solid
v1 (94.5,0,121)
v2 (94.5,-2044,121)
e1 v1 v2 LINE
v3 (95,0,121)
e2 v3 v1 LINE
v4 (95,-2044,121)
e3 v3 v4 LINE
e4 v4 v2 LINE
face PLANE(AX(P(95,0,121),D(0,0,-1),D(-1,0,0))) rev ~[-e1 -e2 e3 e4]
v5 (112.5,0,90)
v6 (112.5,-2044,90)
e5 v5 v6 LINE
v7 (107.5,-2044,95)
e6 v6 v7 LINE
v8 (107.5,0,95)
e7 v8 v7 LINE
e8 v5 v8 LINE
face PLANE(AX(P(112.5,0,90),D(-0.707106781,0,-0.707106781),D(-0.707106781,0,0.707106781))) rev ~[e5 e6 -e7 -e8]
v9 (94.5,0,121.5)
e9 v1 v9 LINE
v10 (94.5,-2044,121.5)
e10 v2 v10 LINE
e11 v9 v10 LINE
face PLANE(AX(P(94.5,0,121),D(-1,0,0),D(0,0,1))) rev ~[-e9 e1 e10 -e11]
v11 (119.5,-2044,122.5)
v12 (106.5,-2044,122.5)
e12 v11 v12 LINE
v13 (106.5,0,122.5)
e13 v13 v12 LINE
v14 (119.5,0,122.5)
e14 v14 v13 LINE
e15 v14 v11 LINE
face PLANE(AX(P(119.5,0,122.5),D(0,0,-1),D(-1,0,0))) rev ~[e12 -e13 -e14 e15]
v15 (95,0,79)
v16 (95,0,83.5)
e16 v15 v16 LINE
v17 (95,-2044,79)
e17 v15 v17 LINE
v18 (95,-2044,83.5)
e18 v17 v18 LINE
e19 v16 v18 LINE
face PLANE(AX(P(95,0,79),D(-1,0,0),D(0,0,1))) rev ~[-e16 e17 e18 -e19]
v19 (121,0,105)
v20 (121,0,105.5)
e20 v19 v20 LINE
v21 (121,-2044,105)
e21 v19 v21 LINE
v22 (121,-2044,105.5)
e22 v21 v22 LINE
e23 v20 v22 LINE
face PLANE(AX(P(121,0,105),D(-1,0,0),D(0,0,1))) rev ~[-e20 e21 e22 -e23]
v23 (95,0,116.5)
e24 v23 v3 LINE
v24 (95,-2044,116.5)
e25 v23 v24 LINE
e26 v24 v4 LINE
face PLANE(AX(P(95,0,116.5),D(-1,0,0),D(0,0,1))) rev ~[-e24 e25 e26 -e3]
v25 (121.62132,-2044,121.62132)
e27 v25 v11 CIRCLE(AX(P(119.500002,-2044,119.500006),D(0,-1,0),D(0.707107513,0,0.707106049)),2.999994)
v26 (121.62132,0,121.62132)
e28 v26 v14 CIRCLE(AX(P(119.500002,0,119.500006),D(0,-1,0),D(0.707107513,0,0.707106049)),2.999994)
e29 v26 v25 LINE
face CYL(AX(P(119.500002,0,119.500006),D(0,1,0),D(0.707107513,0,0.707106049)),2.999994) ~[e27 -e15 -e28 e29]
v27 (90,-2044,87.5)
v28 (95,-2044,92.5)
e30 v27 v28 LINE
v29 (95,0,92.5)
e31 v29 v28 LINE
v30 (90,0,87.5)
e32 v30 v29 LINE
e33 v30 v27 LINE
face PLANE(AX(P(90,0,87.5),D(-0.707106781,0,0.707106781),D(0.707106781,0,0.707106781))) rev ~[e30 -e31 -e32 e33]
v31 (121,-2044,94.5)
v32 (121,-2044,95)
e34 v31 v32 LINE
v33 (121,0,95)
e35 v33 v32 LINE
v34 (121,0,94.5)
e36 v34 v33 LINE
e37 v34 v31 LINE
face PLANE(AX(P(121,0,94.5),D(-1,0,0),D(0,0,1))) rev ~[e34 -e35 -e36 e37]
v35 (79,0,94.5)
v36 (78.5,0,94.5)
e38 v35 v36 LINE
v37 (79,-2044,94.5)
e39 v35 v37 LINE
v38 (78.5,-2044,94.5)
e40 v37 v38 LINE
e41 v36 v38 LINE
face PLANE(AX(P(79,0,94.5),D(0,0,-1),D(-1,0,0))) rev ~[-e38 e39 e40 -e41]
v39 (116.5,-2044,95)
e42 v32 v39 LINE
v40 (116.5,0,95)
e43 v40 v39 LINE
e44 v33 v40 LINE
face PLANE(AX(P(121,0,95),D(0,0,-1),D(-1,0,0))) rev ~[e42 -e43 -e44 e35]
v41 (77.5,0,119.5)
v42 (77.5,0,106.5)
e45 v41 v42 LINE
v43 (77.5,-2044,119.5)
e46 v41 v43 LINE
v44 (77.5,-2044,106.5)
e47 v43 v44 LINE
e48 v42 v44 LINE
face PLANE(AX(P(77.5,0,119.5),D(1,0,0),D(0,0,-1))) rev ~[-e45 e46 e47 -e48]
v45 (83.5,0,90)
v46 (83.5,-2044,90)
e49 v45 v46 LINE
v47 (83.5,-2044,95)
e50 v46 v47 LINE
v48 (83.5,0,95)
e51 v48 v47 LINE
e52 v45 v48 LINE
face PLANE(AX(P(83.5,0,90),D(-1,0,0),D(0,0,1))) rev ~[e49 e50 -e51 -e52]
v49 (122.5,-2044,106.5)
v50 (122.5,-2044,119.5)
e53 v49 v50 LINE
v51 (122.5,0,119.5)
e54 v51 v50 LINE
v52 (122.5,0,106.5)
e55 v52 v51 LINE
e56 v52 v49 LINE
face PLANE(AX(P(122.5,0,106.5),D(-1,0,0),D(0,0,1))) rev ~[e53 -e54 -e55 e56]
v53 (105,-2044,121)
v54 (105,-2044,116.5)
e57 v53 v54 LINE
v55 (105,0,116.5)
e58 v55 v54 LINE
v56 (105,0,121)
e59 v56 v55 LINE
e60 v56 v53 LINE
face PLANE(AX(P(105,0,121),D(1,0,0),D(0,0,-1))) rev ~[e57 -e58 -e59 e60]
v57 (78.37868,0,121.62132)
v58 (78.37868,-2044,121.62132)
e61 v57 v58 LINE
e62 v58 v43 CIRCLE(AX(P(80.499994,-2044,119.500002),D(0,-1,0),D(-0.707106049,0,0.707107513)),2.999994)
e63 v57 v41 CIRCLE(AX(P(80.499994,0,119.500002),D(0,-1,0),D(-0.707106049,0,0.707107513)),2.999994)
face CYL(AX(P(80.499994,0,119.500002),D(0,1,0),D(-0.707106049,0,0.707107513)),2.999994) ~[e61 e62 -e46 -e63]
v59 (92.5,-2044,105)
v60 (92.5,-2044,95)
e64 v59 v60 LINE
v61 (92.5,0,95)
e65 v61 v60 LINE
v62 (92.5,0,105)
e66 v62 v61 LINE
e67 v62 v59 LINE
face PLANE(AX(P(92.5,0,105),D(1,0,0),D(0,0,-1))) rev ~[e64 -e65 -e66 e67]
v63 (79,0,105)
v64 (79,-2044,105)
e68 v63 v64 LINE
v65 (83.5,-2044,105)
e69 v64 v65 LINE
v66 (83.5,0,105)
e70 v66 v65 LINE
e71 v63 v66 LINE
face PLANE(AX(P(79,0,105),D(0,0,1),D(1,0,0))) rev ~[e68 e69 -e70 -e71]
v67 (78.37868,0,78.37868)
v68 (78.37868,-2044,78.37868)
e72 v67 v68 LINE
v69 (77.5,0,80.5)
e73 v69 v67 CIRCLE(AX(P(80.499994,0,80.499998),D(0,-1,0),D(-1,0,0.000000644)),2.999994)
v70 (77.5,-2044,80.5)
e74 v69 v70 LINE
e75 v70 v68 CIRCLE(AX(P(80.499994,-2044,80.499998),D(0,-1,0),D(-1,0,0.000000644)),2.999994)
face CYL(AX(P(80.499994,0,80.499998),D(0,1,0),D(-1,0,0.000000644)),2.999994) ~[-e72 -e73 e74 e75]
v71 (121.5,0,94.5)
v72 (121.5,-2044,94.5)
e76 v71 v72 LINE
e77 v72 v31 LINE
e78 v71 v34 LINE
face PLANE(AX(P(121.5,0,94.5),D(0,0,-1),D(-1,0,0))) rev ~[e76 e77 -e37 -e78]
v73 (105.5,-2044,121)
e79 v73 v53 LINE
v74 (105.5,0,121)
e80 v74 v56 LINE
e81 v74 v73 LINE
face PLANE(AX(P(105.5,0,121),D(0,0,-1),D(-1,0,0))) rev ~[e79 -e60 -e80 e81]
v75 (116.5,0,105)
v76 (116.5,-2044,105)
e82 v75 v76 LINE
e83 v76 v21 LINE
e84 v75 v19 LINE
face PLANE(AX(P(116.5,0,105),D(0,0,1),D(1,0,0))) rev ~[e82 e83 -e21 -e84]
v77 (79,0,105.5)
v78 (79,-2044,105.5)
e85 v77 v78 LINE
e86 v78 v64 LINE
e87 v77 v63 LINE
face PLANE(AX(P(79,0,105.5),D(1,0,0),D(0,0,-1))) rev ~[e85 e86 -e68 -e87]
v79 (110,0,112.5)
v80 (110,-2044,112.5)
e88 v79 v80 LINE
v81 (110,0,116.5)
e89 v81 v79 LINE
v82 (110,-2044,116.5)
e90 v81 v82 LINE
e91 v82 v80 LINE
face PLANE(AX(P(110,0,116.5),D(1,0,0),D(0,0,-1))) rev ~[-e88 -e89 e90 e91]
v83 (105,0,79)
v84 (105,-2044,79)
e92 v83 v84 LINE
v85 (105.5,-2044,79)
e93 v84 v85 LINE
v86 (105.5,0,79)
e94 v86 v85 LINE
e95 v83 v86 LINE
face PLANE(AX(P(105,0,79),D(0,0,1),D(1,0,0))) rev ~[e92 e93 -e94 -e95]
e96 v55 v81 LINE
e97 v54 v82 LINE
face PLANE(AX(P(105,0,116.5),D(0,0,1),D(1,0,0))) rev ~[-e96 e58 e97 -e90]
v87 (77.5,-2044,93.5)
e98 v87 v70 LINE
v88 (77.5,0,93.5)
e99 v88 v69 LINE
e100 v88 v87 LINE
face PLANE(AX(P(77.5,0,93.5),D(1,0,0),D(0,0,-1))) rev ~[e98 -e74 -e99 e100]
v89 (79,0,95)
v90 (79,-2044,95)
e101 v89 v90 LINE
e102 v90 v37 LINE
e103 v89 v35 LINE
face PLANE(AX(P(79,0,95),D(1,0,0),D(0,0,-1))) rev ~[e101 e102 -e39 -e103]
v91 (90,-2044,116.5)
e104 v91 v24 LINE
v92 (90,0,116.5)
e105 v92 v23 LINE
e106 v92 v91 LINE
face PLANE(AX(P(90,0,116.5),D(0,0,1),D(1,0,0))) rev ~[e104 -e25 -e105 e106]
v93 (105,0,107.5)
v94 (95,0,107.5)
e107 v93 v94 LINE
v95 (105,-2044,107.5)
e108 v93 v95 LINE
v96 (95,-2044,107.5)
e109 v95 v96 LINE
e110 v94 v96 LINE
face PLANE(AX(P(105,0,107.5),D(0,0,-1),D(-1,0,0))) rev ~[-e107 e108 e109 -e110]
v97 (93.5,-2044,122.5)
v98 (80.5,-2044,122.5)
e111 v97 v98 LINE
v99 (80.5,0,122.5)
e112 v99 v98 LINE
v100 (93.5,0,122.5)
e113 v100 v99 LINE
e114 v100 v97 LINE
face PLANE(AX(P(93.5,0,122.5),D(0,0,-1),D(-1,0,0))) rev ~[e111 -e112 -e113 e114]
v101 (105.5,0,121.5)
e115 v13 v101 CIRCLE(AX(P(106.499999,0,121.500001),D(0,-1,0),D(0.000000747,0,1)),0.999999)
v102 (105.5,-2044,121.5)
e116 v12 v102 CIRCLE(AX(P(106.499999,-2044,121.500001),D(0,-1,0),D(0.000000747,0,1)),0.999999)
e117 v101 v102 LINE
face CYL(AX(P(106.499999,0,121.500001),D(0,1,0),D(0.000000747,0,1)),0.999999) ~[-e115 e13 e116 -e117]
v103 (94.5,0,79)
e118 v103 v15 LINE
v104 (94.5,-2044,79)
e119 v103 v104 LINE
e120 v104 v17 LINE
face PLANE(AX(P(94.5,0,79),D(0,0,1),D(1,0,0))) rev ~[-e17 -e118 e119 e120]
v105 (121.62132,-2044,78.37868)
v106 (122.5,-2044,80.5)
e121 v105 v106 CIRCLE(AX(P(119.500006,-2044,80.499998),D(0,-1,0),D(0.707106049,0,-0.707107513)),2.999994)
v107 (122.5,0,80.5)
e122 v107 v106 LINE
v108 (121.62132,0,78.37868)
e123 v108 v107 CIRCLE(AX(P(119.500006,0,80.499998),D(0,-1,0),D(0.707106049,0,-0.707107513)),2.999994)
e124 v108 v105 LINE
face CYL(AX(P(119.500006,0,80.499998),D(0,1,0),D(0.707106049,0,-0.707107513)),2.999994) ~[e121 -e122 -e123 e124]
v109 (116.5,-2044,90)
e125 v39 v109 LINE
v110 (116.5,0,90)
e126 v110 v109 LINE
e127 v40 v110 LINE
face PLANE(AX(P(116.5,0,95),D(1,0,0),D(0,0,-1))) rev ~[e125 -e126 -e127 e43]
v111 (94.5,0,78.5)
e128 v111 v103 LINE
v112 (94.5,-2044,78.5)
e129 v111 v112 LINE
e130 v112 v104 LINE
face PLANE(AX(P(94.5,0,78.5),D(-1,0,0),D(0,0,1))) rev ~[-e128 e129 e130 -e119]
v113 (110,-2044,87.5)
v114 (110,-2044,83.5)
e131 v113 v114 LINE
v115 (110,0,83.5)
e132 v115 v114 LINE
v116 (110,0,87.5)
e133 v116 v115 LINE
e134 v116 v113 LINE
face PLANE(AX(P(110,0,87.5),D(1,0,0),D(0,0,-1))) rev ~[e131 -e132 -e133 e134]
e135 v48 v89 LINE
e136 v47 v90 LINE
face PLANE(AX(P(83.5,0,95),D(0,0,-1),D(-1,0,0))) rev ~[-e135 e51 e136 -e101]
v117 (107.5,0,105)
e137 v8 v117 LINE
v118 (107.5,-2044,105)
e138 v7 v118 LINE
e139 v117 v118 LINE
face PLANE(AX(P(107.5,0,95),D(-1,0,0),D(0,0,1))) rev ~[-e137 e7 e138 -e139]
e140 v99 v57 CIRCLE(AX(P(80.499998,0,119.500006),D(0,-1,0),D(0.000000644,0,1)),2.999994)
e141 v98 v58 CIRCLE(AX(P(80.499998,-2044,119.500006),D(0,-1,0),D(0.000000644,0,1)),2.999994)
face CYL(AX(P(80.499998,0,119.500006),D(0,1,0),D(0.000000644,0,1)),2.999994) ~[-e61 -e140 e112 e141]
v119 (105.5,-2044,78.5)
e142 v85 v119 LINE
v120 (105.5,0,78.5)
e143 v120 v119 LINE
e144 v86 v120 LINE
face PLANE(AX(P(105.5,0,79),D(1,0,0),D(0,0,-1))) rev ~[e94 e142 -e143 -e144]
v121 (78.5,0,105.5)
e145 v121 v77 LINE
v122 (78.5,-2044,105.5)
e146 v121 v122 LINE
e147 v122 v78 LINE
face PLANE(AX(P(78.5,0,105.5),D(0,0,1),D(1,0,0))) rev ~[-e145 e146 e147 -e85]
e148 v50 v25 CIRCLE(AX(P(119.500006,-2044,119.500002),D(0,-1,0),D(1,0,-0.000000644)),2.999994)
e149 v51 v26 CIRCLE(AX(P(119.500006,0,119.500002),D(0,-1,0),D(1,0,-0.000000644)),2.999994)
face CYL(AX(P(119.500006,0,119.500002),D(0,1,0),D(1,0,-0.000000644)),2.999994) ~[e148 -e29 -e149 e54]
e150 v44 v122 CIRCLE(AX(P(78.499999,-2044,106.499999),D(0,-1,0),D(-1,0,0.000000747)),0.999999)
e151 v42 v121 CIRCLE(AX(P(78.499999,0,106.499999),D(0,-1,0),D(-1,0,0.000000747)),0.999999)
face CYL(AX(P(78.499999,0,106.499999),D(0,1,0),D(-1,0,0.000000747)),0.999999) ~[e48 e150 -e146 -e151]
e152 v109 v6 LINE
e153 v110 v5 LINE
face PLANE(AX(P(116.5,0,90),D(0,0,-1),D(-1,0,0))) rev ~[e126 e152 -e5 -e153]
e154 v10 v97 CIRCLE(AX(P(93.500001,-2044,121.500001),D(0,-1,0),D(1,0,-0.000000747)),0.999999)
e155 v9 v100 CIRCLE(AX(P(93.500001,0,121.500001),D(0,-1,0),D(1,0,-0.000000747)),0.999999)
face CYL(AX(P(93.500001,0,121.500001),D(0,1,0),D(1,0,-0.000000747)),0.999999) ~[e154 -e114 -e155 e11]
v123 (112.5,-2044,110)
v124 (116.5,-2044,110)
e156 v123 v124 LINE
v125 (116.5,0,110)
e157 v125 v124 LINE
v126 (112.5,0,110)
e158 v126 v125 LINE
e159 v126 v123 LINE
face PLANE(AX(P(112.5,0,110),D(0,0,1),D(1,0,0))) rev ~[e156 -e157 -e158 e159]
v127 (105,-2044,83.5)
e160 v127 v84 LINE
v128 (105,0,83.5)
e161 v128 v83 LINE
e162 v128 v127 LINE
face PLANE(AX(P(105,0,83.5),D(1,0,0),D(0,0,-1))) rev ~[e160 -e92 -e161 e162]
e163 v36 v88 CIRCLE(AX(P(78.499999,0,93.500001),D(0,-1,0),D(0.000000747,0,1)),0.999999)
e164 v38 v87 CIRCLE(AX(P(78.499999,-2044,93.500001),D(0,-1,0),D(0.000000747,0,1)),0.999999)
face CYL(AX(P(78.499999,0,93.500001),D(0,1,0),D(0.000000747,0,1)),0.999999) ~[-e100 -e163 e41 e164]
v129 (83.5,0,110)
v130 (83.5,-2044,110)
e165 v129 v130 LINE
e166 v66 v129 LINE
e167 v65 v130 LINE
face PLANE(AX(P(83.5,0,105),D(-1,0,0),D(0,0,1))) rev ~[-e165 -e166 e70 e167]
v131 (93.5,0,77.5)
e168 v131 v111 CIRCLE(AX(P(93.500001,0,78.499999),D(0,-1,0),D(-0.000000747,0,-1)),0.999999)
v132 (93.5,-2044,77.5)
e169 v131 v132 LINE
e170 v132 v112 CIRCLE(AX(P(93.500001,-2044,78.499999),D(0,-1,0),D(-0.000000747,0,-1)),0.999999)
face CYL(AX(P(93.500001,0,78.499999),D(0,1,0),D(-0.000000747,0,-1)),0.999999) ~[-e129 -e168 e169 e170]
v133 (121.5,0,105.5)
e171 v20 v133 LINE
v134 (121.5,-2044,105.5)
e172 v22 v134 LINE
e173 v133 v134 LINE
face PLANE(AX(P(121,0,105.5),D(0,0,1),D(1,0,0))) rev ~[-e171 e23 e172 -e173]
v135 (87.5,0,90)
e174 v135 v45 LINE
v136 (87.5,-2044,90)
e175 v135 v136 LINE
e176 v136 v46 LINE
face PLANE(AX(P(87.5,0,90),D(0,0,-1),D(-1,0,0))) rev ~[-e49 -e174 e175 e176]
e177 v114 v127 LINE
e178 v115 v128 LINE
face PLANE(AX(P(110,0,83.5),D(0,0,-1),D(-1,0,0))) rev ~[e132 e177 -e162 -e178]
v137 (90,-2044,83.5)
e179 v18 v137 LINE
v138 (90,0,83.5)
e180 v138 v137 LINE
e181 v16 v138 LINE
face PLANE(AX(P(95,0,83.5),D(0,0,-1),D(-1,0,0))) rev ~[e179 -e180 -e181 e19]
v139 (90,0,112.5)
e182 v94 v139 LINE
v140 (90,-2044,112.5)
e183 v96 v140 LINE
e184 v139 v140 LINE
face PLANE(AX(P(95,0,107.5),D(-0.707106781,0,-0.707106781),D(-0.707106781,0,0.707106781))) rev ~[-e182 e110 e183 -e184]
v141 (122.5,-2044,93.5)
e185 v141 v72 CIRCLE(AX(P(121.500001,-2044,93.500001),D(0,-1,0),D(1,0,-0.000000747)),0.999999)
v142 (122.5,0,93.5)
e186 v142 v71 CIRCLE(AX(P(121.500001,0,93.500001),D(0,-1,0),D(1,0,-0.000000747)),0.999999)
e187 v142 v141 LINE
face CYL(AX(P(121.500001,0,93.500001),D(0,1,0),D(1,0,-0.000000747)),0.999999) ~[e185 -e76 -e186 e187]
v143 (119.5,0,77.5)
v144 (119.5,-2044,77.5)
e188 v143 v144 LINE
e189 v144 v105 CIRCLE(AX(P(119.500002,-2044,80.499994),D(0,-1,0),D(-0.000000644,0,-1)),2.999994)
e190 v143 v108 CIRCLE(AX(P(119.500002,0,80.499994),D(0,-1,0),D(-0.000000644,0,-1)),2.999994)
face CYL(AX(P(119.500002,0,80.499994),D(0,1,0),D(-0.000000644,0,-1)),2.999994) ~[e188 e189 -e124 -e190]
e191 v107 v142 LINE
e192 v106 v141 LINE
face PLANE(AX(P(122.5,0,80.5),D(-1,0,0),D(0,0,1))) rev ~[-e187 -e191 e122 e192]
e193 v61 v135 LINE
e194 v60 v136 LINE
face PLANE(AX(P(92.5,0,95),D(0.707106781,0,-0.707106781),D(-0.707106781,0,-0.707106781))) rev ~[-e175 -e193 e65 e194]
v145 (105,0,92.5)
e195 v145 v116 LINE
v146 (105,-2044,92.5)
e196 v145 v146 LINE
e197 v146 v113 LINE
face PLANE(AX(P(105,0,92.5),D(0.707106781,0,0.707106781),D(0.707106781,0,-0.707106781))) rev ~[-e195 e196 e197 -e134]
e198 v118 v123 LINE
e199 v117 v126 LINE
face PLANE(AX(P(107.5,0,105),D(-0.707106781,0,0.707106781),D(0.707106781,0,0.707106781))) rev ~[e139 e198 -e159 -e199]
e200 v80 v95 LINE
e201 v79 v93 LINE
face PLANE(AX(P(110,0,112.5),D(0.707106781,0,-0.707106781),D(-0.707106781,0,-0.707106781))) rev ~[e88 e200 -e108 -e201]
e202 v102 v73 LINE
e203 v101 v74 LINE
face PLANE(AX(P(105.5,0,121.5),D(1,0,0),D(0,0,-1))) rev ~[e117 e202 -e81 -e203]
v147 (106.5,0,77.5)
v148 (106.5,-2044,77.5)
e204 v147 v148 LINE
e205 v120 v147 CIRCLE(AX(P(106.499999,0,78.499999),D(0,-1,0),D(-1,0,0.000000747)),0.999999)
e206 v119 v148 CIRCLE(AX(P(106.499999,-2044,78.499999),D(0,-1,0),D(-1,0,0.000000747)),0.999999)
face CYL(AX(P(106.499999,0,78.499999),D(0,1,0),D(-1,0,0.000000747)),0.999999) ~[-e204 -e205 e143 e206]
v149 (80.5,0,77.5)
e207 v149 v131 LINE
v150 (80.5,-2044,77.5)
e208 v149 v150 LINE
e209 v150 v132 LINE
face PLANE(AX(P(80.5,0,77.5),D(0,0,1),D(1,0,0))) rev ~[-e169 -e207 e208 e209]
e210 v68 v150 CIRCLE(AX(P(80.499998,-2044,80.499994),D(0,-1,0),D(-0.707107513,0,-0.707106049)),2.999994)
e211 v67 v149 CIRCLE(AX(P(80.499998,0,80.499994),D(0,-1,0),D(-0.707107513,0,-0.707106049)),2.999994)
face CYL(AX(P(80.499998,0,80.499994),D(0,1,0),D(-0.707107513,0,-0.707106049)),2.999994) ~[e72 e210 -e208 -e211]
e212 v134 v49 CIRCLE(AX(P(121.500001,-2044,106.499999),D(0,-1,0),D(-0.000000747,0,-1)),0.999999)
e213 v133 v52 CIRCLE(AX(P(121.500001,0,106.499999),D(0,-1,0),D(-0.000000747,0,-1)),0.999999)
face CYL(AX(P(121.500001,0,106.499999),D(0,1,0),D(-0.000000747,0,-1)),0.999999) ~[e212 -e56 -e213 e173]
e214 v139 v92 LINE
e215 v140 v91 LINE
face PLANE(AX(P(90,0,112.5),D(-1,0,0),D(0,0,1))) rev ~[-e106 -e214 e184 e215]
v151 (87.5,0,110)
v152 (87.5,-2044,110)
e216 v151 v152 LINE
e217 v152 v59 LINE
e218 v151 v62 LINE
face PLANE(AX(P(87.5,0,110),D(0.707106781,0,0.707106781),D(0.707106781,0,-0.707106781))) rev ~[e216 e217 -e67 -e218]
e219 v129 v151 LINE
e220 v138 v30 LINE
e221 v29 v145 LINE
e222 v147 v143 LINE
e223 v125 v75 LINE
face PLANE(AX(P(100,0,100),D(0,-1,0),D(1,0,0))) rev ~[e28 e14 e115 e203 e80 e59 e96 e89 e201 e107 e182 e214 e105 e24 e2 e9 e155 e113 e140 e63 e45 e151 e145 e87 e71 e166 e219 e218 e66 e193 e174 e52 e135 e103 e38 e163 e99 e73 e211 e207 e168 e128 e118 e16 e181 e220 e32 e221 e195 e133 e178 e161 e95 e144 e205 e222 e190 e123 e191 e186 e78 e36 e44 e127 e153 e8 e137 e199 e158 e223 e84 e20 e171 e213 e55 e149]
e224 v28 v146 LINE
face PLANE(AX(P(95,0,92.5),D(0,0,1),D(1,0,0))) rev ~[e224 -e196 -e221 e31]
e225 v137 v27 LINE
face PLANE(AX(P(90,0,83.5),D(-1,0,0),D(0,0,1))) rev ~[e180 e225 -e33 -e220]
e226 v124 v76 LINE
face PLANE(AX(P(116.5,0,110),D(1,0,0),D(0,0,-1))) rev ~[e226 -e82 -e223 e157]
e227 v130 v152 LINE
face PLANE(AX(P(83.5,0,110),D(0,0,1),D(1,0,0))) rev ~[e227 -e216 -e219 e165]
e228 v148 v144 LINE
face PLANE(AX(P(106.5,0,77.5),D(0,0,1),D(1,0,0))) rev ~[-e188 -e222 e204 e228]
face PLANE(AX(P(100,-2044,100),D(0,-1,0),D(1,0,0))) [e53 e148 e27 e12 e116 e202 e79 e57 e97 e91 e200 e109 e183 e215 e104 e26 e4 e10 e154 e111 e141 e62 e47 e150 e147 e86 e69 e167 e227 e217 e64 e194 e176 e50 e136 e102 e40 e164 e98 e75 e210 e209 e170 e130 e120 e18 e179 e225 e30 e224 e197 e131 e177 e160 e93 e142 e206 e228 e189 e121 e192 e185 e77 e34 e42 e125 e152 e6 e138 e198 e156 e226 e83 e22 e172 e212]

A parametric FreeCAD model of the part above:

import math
import FreeCAD as App
import Part
import Sketcher

doc = App.newDocument("Part")
params = doc.addObject("Spreadsheet::Sheet", "Params")
for row, (alias, value) in enumerate([
    ("sketch1_radius", "0.999999 mm"),
    ("sketch1_width", "13 mm"),
    ("sketch1_width2", "4 mm"),
    ("sketch1_width3", "5 mm"),
    ("sketch1_width4", "10 mm"),
    ("pad1_length", "2044 mm"),
], start=1):
    params.set(f"A{row}", alias)
    params.set(f"B{row}", "=" + value)
    params.setAlias(f"B{row}", alias)

body = doc.addObject("PartDesign::Body", "Body")

sketch1 = doc.addObject("Sketcher::SketchObject", "Sketch")
body.addObject(sketch1)
sketch1.AttachmentSupport = (doc.XZ_Plane, [""])
sketch1.MapMode = "FlatFace"
sketch1.addGeometry(Part.LineSegment(App.Vector(93.5, 122.5, 0), App.Vector(80.5, 122.5, 0)), False)
sketch1.addGeometry(Part.ArcOfCircle(Part.Circle(App.Vector(80.5, 119.5, 0), App.Vector(0, 0, 1), 3), math.radians(90), math.radians(135)), False)
sketch1.addGeometry(Part.ArcOfCircle(Part.Circle(App.Vector(80.5, 119.5, 0), App.Vector(0, 0, 1), 3), math.radians(135), math.radians(180)), False)
sketch1.addGeometry(Part.LineSegment(App.Vector(77.5, 119.5, 0), App.Vector(77.5, 106.5, 0)), False)
sketch1.addGeometry(Part.ArcOfCircle(Part.Circle(App.Vector(78.5, 106.5, 0), App.Vector(0, 0, 1), 1), math.radians(180), math.radians(270)), False)
sketch1.addGeometry(Part.LineSegment(App.Vector(78.5, 105.5, 0), App.Vector(79, 105.5, 0)), False)
sketch1.addGeometry(Part.LineSegment(App.Vector(79, 105.5, 0), App.Vector(79, 105, 0)), False)
sketch1.addGeometry(Part.LineSegment(App.Vector(79, 105, 0), App.Vector(83.5, 105, 0)), False)
sketch1.addGeometry(Part.LineSegment(App.Vector(83.5, 105, 0), App.Vector(83.5, 110, 0)), False)
sketch1.addGeometry(Part.LineSegment(App.Vector(83.5, 110, 0), App.Vector(87.5, 110, 0)), False)
sketch1.addGeometry(Part.LineSegment(App.Vector(87.5, 110, 0), App.Vector(92.5, 105, 0)), False)
sketch1.addGeometry(Part.LineSegment(App.Vector(92.5, 105, 0), App.Vector(92.5, 95, 0)), False)
sketch1.addGeometry(Part.LineSegment(App.Vector(92.5, 95, 0), App.Vector(87.5, 90, 0)), False)
sketch1.addGeometry(Part.LineSegment(App.Vector(87.5, 90, 0), App.Vector(83.5, 90, 0)), False)
sketch1.addGeometry(Part.LineSegment(App.Vector(83.5, 90, 0), App.Vector(83.5, 95, 0)), False)
sketch1.addGeometry(Part.LineSegment(App.Vector(83.5, 95, 0), App.Vector(79, 95, 0)), False)
sketch1.addGeometry(Part.LineSegment(App.Vector(79, 95, 0), App.Vector(79, 94.5, 0)), False)
sketch1.addGeometry(Part.LineSegment(App.Vector(79, 94.5, 0), App.Vector(78.5, 94.5, 0)), False)
sketch1.addGeometry(Part.ArcOfCircle(Part.Circle(App.Vector(78.5, 93.5, 0), App.Vector(0, 0, 1), 1), math.radians(90), math.radians(180)), False)
sketch1.addGeometry(Part.LineSegment(App.Vector(77.5, 93.5, 0), App.Vector(77.5, 80.5, 0)), False)
sketch1.addGeometry(Part.ArcOfCircle(Part.Circle(App.Vector(80.5, 80.5, 0), App.Vector(0, 0, 1), 3), math.radians(180), math.radians(225)), False)
sketch1.addGeometry(Part.ArcOfCircle(Part.Circle(App.Vector(80.5, 80.5, 0), App.Vector(0, 0, 1), 3), math.radians(-135), math.radians(-90)), False)
sketch1.addGeometry(Part.LineSegment(App.Vector(80.5, 77.5, 0), App.Vector(93.5, 77.5, 0)), False)
sketch1.addGeometry(Part.ArcOfCircle(Part.Circle(App.Vector(93.5, 78.5, 0), App.Vector(0, 0, 1), 1), math.radians(-90), math.radians(0)), False)
sketch1.addGeometry(Part.LineSegment(App.Vector(94.5, 78.5, 0), App.Vector(94.5, 79, 0)), False)
sketch1.addGeometry(Part.LineSegment(App.Vector(94.5, 79, 0), App.Vector(95, 79, 0)), False)
sketch1.addGeometry(Part.LineSegment(App.Vector(95, 79, 0), App.Vector(95, 83.5, 0)), False)
sketch1.addGeometry(Part.LineSegment(App.Vector(95, 83.5, 0), App.Vector(90, 83.5, 0)), False)
sketch1.addGeometry(Part.LineSegment(App.Vector(90, 83.5, 0), App.Vector(90, 87.5, 0)), False)
sketch1.addGeometry(Part.LineSegment(App.Vector(90, 87.5, 0), App.Vector(95, 92.5, 0)), False)
sketch1.addGeometry(Part.LineSegment(App.Vector(95, 92.5, 0), App.Vector(105, 92.5, 0)), False)
sketch1.addGeometry(Part.LineSegment(App.Vector(105, 92.5, 0), App.Vector(110, 87.5, 0)), False)
sketch1.addGeometry(Part.LineSegment(App.Vector(110, 87.5, 0), App.Vector(110, 83.5, 0)), False)
sketch1.addGeometry(Part.LineSegment(App.Vector(110, 83.5, 0), App.Vector(105, 83.5, 0)), False)
sketch1.addGeometry(Part.LineSegment(App.Vector(105, 83.5, 0), App.Vector(105, 79, 0)), False)
sketch1.addGeometry(Part.LineSegment(App.Vector(105, 79, 0), App.Vector(105.5, 79, 0)), False)
sketch1.addGeometry(Part.LineSegment(App.Vector(105.5, 79, 0), App.Vector(105.5, 78.5, 0)), False)
sketch1.addGeometry(Part.ArcOfCircle(Part.Circle(App.Vector(106.5, 78.5, 0), App.Vector(0, 0, 1), 1), math.radians(180), math.radians(270)), False)
sketch1.addGeometry(Part.LineSegment(App.Vector(106.5, 77.5, 0), App.Vector(119.5, 77.5, 0)), False)
sketch1.addGeometry(Part.ArcOfCircle(Part.Circle(App.Vector(119.5, 80.5, 0), App.Vector(0, 0, 1), 3), math.radians(-90), math.radians(-45)), False)
sketch1.addGeometry(Part.ArcOfCircle(Part.Circle(App.Vector(119.5, 80.5, 0), App.Vector(0, 0, 1), 3), math.radians(-45), math.radians(0)), False)
sketch1.addGeometry(Part.LineSegment(App.Vector(122.5, 80.5, 0), App.Vector(122.5, 93.5, 0)), False)
sketch1.addGeometry(Part.ArcOfCircle(Part.Circle(App.Vector(121.5, 93.5, 0), App.Vector(0, 0, 1), 1), math.radians(0), math.radians(90)), False)
sketch1.addGeometry(Part.LineSegment(App.Vector(121.5, 94.5, 0), App.Vector(121, 94.5, 0)), False)
sketch1.addGeometry(Part.LineSegment(App.Vector(121, 94.5, 0), App.Vector(121, 95, 0)), False)
sketch1.addGeometry(Part.LineSegment(App.Vector(121, 95, 0), App.Vector(116.5, 95, 0)), False)
sketch1.addGeometry(Part.LineSegment(App.Vector(116.5, 95, 0), App.Vector(116.5, 90, 0)), False)
sketch1.addGeometry(Part.LineSegment(App.Vector(116.5, 90, 0), App.Vector(112.5, 90, 0)), False)
sketch1.addGeometry(Part.LineSegment(App.Vector(112.5, 90, 0), App.Vector(107.5, 95, 0)), False)
sketch1.addGeometry(Part.LineSegment(App.Vector(107.5, 95, 0), App.Vector(107.5, 105, 0)), False)
sketch1.addGeometry(Part.LineSegment(App.Vector(107.5, 105, 0), App.Vector(112.5, 110, 0)), False)
sketch1.addGeometry(Part.LineSegment(App.Vector(112.5, 110, 0), App.Vector(116.5, 110, 0)), False)
sketch1.addGeometry(Part.LineSegment(App.Vector(116.5, 110, 0), App.Vector(116.5, 105, 0)), False)
sketch1.addGeometry(Part.LineSegment(App.Vector(116.5, 105, 0), App.Vector(121, 105, 0)), False)
sketch1.addGeometry(Part.LineSegment(App.Vector(121, 105, 0), App.Vector(121, 105.5, 0)), False)
sketch1.addGeometry(Part.LineSegment(App.Vector(121, 105.5, 0), App.Vector(121.5, 105.5, 0)), False)
sketch1.addGeometry(Part.ArcOfCircle(Part.Circle(App.Vector(121.5, 106.5, 0), App.Vector(0, 0, 1), 1), math.radians(-90), math.radians(0)), False)
sketch1.addGeometry(Part.LineSegment(App.Vector(122.5, 106.5, 0), App.Vector(122.5, 119.5, 0)), False)
sketch1.addGeometry(Part.ArcOfCircle(Part.Circle(App.Vector(119.5, 119.5, 0), App.Vector(0, 0, 1), 3), math.radians(0), math.radians(45)), False)
sketch1.addGeometry(Part.ArcOfCircle(Part.Circle(App.Vector(119.5, 119.5, 0), App.Vector(0, 0, 1), 3), math.radians(45), math.radians(90)), False)
sketch1.addGeometry(Part.LineSegment(App.Vector(119.5, 122.5, 0), App.Vector(106.5, 122.5, 0)), False)
sketch1.addGeometry(Part.ArcOfCircle(Part.Circle(App.Vector(106.5, 121.5, 0), App.Vector(0, 0, 1), 1), math.radians(90), math.radians(180)), False)
sketch1.addGeometry(Part.LineSegment(App.Vector(105.5, 121.5, 0), App.Vector(105.5, 121, 0)), False)
sketch1.addGeometry(Part.LineSegment(App.Vector(105.5, 121, 0), App.Vector(105, 121, 0)), False)
sketch1.addGeometry(Part.LineSegment(App.Vector(105, 121, 0), App.Vector(105, 116.5, 0)), False)
sketch1.addGeometry(Part.LineSegment(App.Vector(105, 116.5, 0), App.Vector(110, 116.5, 0)), False)
sketch1.addGeometry(Part.LineSegment(App.Vector(110, 116.5, 0), App.Vector(110, 112.5, 0)), False)
sketch1.addGeometry(Part.LineSegment(App.Vector(110, 112.5, 0), App.Vector(105, 107.5, 0)), False)
sketch1.addGeometry(Part.LineSegment(App.Vector(105, 107.5, 0), App.Vector(95, 107.5, 0)), False)
sketch1.addGeometry(Part.LineSegment(App.Vector(95, 107.5, 0), App.Vector(90, 112.5, 0)), False)
sketch1.addGeometry(Part.LineSegment(App.Vector(90, 112.5, 0), App.Vector(90, 116.5, 0)), False)
sketch1.addGeometry(Part.LineSegment(App.Vector(90, 116.5, 0), App.Vector(95, 116.5, 0)), False)
sketch1.addGeometry(Part.LineSegment(App.Vector(95, 116.5, 0), App.Vector(95, 121, 0)), False)
sketch1.addGeometry(Part.LineSegment(App.Vector(95, 121, 0), App.Vector(94.5, 121, 0)), False)
sketch1.addGeometry(Part.LineSegment(App.Vector(94.5, 121, 0), App.Vector(94.5, 121.5, 0)), False)
sketch1.addGeometry(Part.ArcOfCircle(Part.Circle(App.Vector(93.5, 121.5, 0), App.Vector(0, 0, 1), 1), math.radians(0), math.radians(90)), False)
sketch1.addConstraint(Sketcher.Constraint("Tangent", 0, 2, 1, 1))
sketch1.addConstraint(Sketcher.Constraint("Coincident", 1, 2, 2, 1))
sketch1.addConstraint(Sketcher.Constraint("Tangent", 2, 2, 3, 1))
sketch1.addConstraint(Sketcher.Constraint("Tangent", 3, 2, 4, 1))
sketch1.addConstraint(Sketcher.Constraint("Tangent", 4, 2, 5, 1))
sketch1.addConstraint(Sketcher.Constraint("Coincident", 5, 2, 6, 1))
sketch1.addConstraint(Sketcher.Constraint("Coincident", 6, 2, 7, 1))
sketch1.addConstraint(Sketcher.Constraint("Coincident", 7, 2, 8, 1))
sketch1.addConstraint(Sketcher.Constraint("Coincident", 8, 2, 9, 1))
sketch1.addConstraint(Sketcher.Constraint("Coincident", 9, 2, 10, 1))
sketch1.addConstraint(Sketcher.Constraint("Coincident", 10, 2, 11, 1))
sketch1.addConstraint(Sketcher.Constraint("Coincident", 11, 2, 12, 1))
sketch1.addConstraint(Sketcher.Constraint("Coincident", 12, 2, 13, 1))
sketch1.addConstraint(Sketcher.Constraint("Coincident", 13, 2, 14, 1))
sketch1.addConstraint(Sketcher.Constraint("Coincident", 14, 2, 15, 1))
sketch1.addConstraint(Sketcher.Constraint("Coincident", 15, 2, 16, 1))
sketch1.addConstraint(Sketcher.Constraint("Coincident", 16, 2, 17, 1))
sketch1.addConstraint(Sketcher.Constraint("Tangent", 17, 2, 18, 1))
sketch1.addConstraint(Sketcher.Constraint("Tangent", 18, 2, 19, 1))
sketch1.addConstraint(Sketcher.Constraint("Tangent", 19, 2, 20, 1))
sketch1.addConstraint(Sketcher.Constraint("Coincident", 20, 2, 21, 1))
sketch1.addConstraint(Sketcher.Constraint("Tangent", 21, 2, 22, 1))
sketch1.addConstraint(Sketcher.Constraint("Tangent", 22, 2, 23, 1))
sketch1.addConstraint(Sketcher.Constraint("Tangent", 23, 2, 24, 1))
sketch1.addConstraint(Sketcher.Constraint("Coincident", 24, 2, 25, 1))
sketch1.addConstraint(Sketcher.Constraint("Coincident", 25, 2, 26, 1))
sketch1.addConstraint(Sketcher.Constraint("Coincident", 26, 2, 27, 1))
sketch1.addConstraint(Sketcher.Constraint("Coincident", 27, 2, 28, 1))
sketch1.addConstraint(Sketcher.Constraint("Coincident", 28, 2, 29, 1))
sketch1.addConstraint(Sketcher.Constraint("Coincident", 29, 2, 30, 1))
sketch1.addConstraint(Sketcher.Constraint("Coincident", 30, 2, 31, 1))
sketch1.addConstraint(Sketcher.Constraint("Coincident", 31, 2, 32, 1))
sketch1.addConstraint(Sketcher.Constraint("Coincident", 32, 2, 33, 1))
sketch1.addConstraint(Sketcher.Constraint("Coincident", 33, 2, 34, 1))
sketch1.addConstraint(Sketcher.Constraint("Coincident", 34, 2, 35, 1))
sketch1.addConstraint(Sketcher.Constraint("Coincident", 35, 2, 36, 1))
sketch1.addConstraint(Sketcher.Constraint("Tangent", 36, 2, 37, 1))
sketch1.addConstraint(Sketcher.Constraint("Tangent", 37, 2, 38, 1))
sketch1.addConstraint(Sketcher.Constraint("Tangent", 38, 2, 39, 1))
sketch1.addConstraint(Sketcher.Constraint("Coincident", 39, 2, 40, 1))
sketch1.addConstraint(Sketcher.Constraint("Tangent", 40, 2, 41, 1))
sketch1.addConstraint(Sketcher.Constraint("Tangent", 41, 2, 42, 1))
sketch1.addConstraint(Sketcher.Constraint("Tangent", 42, 2, 43, 1))
sketch1.addConstraint(Sketcher.Constraint("Coincident", 43, 2, 44, 1))
sketch1.addConstraint(Sketcher.Constraint("Coincident", 44, 2, 45, 1))
sketch1.addConstraint(Sketcher.Constraint("Coincident", 45, 2, 46, 1))
sketch1.addConstraint(Sketcher.Constraint("Coincident", 46, 2, 47, 1))
sketch1.addConstraint(Sketcher.Constraint("Coincident", 47, 2, 48, 1))
sketch1.addConstraint(Sketcher.Constraint("Coincident", 48, 2, 49, 1))
sketch1.addConstraint(Sketcher.Constraint("Coincident", 49, 2, 50, 1))
sketch1.addConstraint(Sketcher.Constraint("Coincident", 50, 2, 51, 1))
sketch1.addConstraint(Sketcher.Constraint("Coincident", 51, 2, 52, 1))
sketch1.addConstraint(Sketcher.Constraint("Coincident", 52, 2, 53, 1))
sketch1.addConstraint(Sketcher.Constraint("Coincident", 53, 2, 54, 1))
sketch1.addConstraint(Sketcher.Constraint("Coincident", 54, 2, 55, 1))
sketch1.addConstraint(Sketcher.Constraint("Tangent", 55, 2, 56, 1))
sketch1.addConstraint(Sketcher.Constraint("Tangent", 56, 2, 57, 1))
sketch1.addConstraint(Sketcher.Constraint("Tangent", 57, 2, 58, 1))
sketch1.addConstraint(Sketcher.Constraint("Coincident", 58, 2, 59, 1))
sketch1.addConstraint(Sketcher.Constraint("Tangent", 59, 2, 60, 1))
sketch1.addConstraint(Sketcher.Constraint("Tangent", 60, 2, 61, 1))
sketch1.addConstraint(Sketcher.Constraint("Tangent", 61, 2, 62, 1))
sketch1.addConstraint(Sketcher.Constraint("Coincident", 62, 2, 63, 1))
sketch1.addConstraint(Sketcher.Constraint("Coincident", 63, 2, 64, 1))
sketch1.addConstraint(Sketcher.Constraint("Coincident", 64, 2, 65, 1))
sketch1.addConstraint(Sketcher.Constraint("Coincident", 65, 2, 66, 1))
sketch1.addConstraint(Sketcher.Constraint("Coincident", 66, 2, 67, 1))
sketch1.addConstraint(Sketcher.Constraint("Coincident", 67, 2, 68, 1))
sketch1.addConstraint(Sketcher.Constraint("Coincident", 68, 2, 69, 1))
sketch1.addConstraint(Sketcher.Constraint("Coincident", 69, 2, 70, 1))
sketch1.addConstraint(Sketcher.Constraint("Coincident", 70, 2, 71, 1))
sketch1.addConstraint(Sketcher.Constraint("Coincident", 71, 2, 72, 1))
sketch1.addConstraint(Sketcher.Constraint("Coincident", 72, 2, 73, 1))
sketch1.addConstraint(Sketcher.Constraint("Coincident", 73, 2, 74, 1))
sketch1.addConstraint(Sketcher.Constraint("Tangent", 74, 2, 75, 1))
sketch1.addConstraint(Sketcher.Constraint("Tangent", 75, 2, 0, 1))
sketch1.addConstraint(Sketcher.Constraint("Horizontal", 0))
sketch1.addConstraint(Sketcher.Constraint("Vertical", 3))
sketch1.addConstraint(Sketcher.Constraint("Horizontal", 5))
sketch1.addConstraint(Sketcher.Constraint("Vertical", 6))
sketch1.addConstraint(Sketcher.Constraint("Horizontal", 7))
sketch1.addConstraint(Sketcher.Constraint("Vertical", 8))
sketch1.addConstraint(Sketcher.Constraint("Horizontal", 9))
sketch1.addConstraint(Sketcher.Constraint("Vertical", 11))
sketch1.addConstraint(Sketcher.Constraint("Horizontal", 13))
sketch1.addConstraint(Sketcher.Constraint("Vertical", 14))
sketch1.addConstraint(Sketcher.Constraint("Horizontal", 15))
sketch1.addConstraint(Sketcher.Constraint("Vertical", 16))
sketch1.addConstraint(Sketcher.Constraint("Horizontal", 17))
sketch1.addConstraint(Sketcher.Constraint("Vertical", 19))
sketch1.addConstraint(Sketcher.Constraint("Horizontal", 22))
sketch1.addConstraint(Sketcher.Constraint("Vertical", 24))
sketch1.addConstraint(Sketcher.Constraint("Horizontal", 25))
sketch1.addConstraint(Sketcher.Constraint("Vertical", 26))
sketch1.addConstraint(Sketcher.Constraint("Horizontal", 27))
sketch1.addConstraint(Sketcher.Constraint("Vertical", 28))
sketch1.addConstraint(Sketcher.Constraint("Horizontal", 30))
sketch1.addConstraint(Sketcher.Constraint("Vertical", 32))
sketch1.addConstraint(Sketcher.Constraint("Horizontal", 33))
sketch1.addConstraint(Sketcher.Constraint("Vertical", 34))
sketch1.addConstraint(Sketcher.Constraint("Horizontal", 35))
sketch1.addConstraint(Sketcher.Constraint("Vertical", 36))
sketch1.addConstraint(Sketcher.Constraint("Horizontal", 38))
sketch1.addConstraint(Sketcher.Constraint("Vertical", 41))
sketch1.addConstraint(Sketcher.Constraint("Horizontal", 43))
sketch1.addConstraint(Sketcher.Constraint("Vertical", 44))
sketch1.addConstraint(Sketcher.Constraint("Horizontal", 45))
sketch1.addConstraint(Sketcher.Constraint("Vertical", 46))
sketch1.addConstraint(Sketcher.Constraint("Horizontal", 47))
sketch1.addConstraint(Sketcher.Constraint("Vertical", 49))
sketch1.addConstraint(Sketcher.Constraint("Horizontal", 51))
sketch1.addConstraint(Sketcher.Constraint("Vertical", 52))
sketch1.addConstraint(Sketcher.Constraint("Horizontal", 53))
sketch1.addConstraint(Sketcher.Constraint("Vertical", 54))
sketch1.addConstraint(Sketcher.Constraint("Horizontal", 55))
sketch1.addConstraint(Sketcher.Constraint("Vertical", 57))
sketch1.addConstraint(Sketcher.Constraint("Horizontal", 60))
sketch1.addConstraint(Sketcher.Constraint("Vertical", 62))
sketch1.addConstraint(Sketcher.Constraint("Horizontal", 63))
sketch1.addConstraint(Sketcher.Constraint("Vertical", 64))
sketch1.addConstraint(Sketcher.Constraint("Horizontal", 65))
sketch1.addConstraint(Sketcher.Constraint("Vertical", 66))
sketch1.addConstraint(Sketcher.Constraint("Horizontal", 68))
sketch1.addConstraint(Sketcher.Constraint("Vertical", 70))
sketch1.addConstraint(Sketcher.Constraint("Horizontal", 71))
sketch1.addConstraint(Sketcher.Constraint("Vertical", 72))
sketch1.addConstraint(Sketcher.Constraint("Horizontal", 73))
sketch1.addConstraint(Sketcher.Constraint("Vertical", 74))
sketch1.addConstraint(Sketcher.Constraint("Coincident", 2, 3, 1, 3))
sketch1.addConstraint(Sketcher.Constraint("Coincident", 21, 3, 20, 3))
sketch1.addConstraint(Sketcher.Constraint("Coincident", 40, 3, 39, 3))
sketch1.addConstraint(Sketcher.Constraint("Coincident", 59, 3, 58, 3))
sketch1.addConstraint(Sketcher.Constraint("Equal", 4, 18))
sketch1.addConstraint(Sketcher.Constraint("Equal", 2, 20))
sketch1.addConstraint(Sketcher.Constraint("Equal", 18, 23))
sketch1.addConstraint(Sketcher.Constraint("Equal", 23, 37))
sketch1.addConstraint(Sketcher.Constraint("Equal", 21, 39))
sketch1.addConstraint(Sketcher.Constraint("Equal", 37, 42))
sketch1.addConstraint(Sketcher.Constraint("Equal", 42, 56))
sketch1.addConstraint(Sketcher.Constraint("Equal", 40, 58))
sketch1.addConstraint(Sketcher.Constraint("Equal", 56, 61))
sketch1.addConstraint(Sketcher.Constraint("Equal", 61, 75))
sketch1.addConstraint(Sketcher.Constraint("Perpendicular", 10, 12))
sketch1.addConstraint(Sketcher.Constraint("Parallel", 12, 29))
sketch1.addConstraint(Sketcher.Constraint("Perpendicular", 29, 31))
sketch1.addConstraint(Sketcher.Constraint("Parallel", 31, 48))
sketch1.addConstraint(Sketcher.Constraint("Perpendicular", 48, 50))
sketch1.addConstraint(Sketcher.Constraint("Parallel", 50, 67))
sketch1.addConstraint(Sketcher.Constraint("Perpendicular", 67, 69))
sketch1.addConstraint(Sketcher.Constraint("Horizontal", 23, 3, 37, 3))
sketch1.addConstraint(Sketcher.Constraint("Horizontal", 18, 3, 42, 3))
sketch1.addConstraint(Sketcher.Constraint("Horizontal", 4, 3, 56, 3))
sketch1.addConstraint(Sketcher.Constraint("Horizontal", 2, 3, 58, 3))
sketch1.addConstraint(Sketcher.Constraint("Horizontal", 7, 2, 10, 2))
sketch1.addConstraint(Sketcher.Constraint("Horizontal", 11, 2, 14, 2))
sketch1.addConstraint(Sketcher.Constraint("Horizontal", 28, 2, 31, 2))
sketch1.addConstraint(Sketcher.Constraint("Horizontal", 27, 2, 32, 2))
sketch1.addConstraint(Sketcher.Constraint("Horizontal", 25, 2, 34, 2))
sketch1.addConstraint(Sketcher.Constraint("Horizontal", 20, 2, 39, 2))
sketch1.addConstraint(Sketcher.Constraint("Horizontal", 15, 2, 44, 2))
sketch1.addConstraint(Sketcher.Constraint("Horizontal", 13, 2, 46, 2))
sketch1.addConstraint(Sketcher.Constraint("Horizontal", 45, 2, 48, 2))
sketch1.addConstraint(Sketcher.Constraint("Horizontal", 10, 2, 49, 2))
sketch1.addConstraint(Sketcher.Constraint("Horizontal", 9, 2, 50, 2))
sketch1.addConstraint(Sketcher.Constraint("Horizontal", 49, 2, 52, 2))
sketch1.addConstraint(Sketcher.Constraint("Horizontal", 1, 2, 58, 2))
sketch1.addConstraint(Sketcher.Constraint("Horizontal", 66, 2, 69, 2))
sketch1.addConstraint(Sketcher.Constraint("Horizontal", 65, 2, 70, 2))
sketch1.addConstraint(Sketcher.Constraint("Horizontal", 63, 2, 72, 2))
sketch1.addConstraint(Sketcher.Constraint("Vertical", 4, 3, 18, 3))
sketch1.addConstraint(Sketcher.Constraint("Vertical", 42, 3, 56, 3))
sketch1.addConstraint(Sketcher.Constraint("Vertical", 37, 3, 61, 3))
sketch1.addConstraint(Sketcher.Constraint("Vertical", 23, 3, 75, 3))
sketch1.addConstraint(Sketcher.Constraint("Vertical", 9, 2, 12, 2))
sketch1.addConstraint(Sketcher.Constraint("Vertical", 8, 2, 13, 2))
sketch1.addConstraint(Sketcher.Constraint("Vertical", 6, 2, 15, 2))
sketch1.addConstraint(Sketcher.Constraint("Vertical", 1, 2, 20, 2))
sketch1.addConstraint(Sketcher.Constraint("Vertical", 26, 2, 29, 2))
sketch1.addConstraint(Sketcher.Constraint("Vertical", 30, 2, 33, 2))
sketch1.addConstraint(Sketcher.Constraint("Vertical", 47, 2, 50, 2))
sketch1.addConstraint(Sketcher.Constraint("Vertical", 46, 2, 51, 2))
sketch1.addConstraint(Sketcher.Constraint("Vertical", 44, 2, 53, 2))
sketch1.addConstraint(Sketcher.Constraint("Vertical", 34, 2, 63, 2))
sketch1.addConstraint(Sketcher.Constraint("Vertical", 32, 2, 65, 2))
sketch1.addConstraint(Sketcher.Constraint("Vertical", 64, 2, 67, 2))
sketch1.addConstraint(Sketcher.Constraint("Vertical", 29, 2, 68, 2))
sketch1.addConstraint(Sketcher.Constraint("Vertical", 68, 2, 71, 2))
sketch1.addConstraint(Sketcher.Constraint("Equal", 17, 25))
sketch1.addConstraint(Sketcher.Constraint("Equal", 25, 35))
sketch1.addConstraint(Sketcher.Constraint("Equal", 22, 38))
sketch1.addConstraint(Sketcher.Constraint("Equal", 35, 43))
sketch1.addConstraint(Sketcher.Constraint("Equal", 15, 45))
sketch1.addConstraint(Sketcher.Constraint("Equal", 13, 47))
sketch1.addConstraint(Sketcher.Constraint("Equal", 60, 3))
sketch1.addConstraint(Sketcher.Constraint("Equal", 73, 6))
sketch1.addConstraint(Sketcher.Constraint("Equal", 71, 8))
sketch1.addConstraint(Sketcher.Constraint("Equal", 68, 11))
sketch1.addConstraint(Sketcher.Constraint("Equal", 6, 16))
sketch1.addConstraint(Sketcher.Constraint("Equal", 3, 19))
sketch1.addConstraint(Sketcher.Constraint("Equal", 16, 24))
sketch1.addConstraint(Sketcher.Constraint("Equal", 53, 26))
sketch1.addConstraint(Sketcher.Constraint("Equal", 51, 28))
sketch1.addConstraint(Sketcher.Constraint("Equal", 54, 62))
sketch1.addConstraint(Sketcher.Constraint("Equal", 34, 64))
sketch1.addConstraint(Sketcher.Constraint("Equal", 32, 66))
sketch1.addConstraint(Sketcher.Constraint("Radius", 4, 0.999999))
sketch1.addConstraint(Sketcher.Constraint("DistanceX", 0, 2, 0, 1, 13.0))
sketch1.addConstraint(Sketcher.Constraint("DistanceX", 9, 1, 9, 2, 4.0))
sketch1.addConstraint(Sketcher.Constraint("DistanceX", 27, 2, 27, 1, 5.0))
sketch1.addConstraint(Sketcher.Constraint("DistanceX", 30, 1, 30, 2, 10.0))
sketch1.addConstraint(Sketcher.Constraint("DistanceX", 5, 1, 5, 2, 0.5))
sketch1.addConstraint(Sketcher.Constraint("DistanceX", 7, 1, 7, 2, 4.5))
sketch1.addConstraint(Sketcher.Constraint("DistanceX", -1, 1, 5, 2, 79.0))
sketch1.addConstraint(Sketcher.Constraint("DistanceY", -1, 1, 6, 2, 105.0))
sketch1.addConstraint(Sketcher.Constraint("DistanceY", -1, 1, 24, 2, 79.0))
sketch1.addConstraint(Sketcher.Constraint("DistanceX", -1, 1, 1, 2, 78.37868))
sketch1.setExpression("Constraints[205]", "Params.sketch1_radius")
sketch1.setExpression("Constraints[206]", "Params.sketch1_width")
sketch1.setExpression("Constraints[207]", "Params.sketch1_width2")
sketch1.setExpression("Constraints[208]", "Params.sketch1_width3")
sketch1.setExpression("Constraints[209]", "Params.sketch1_width4")
pad1 = doc.addObject("PartDesign::Pad", "Pad")
body.addObject(pad1)
pad1.Profile = sketch1
pad1.setExpression("Length", "Params.pad1_length")

doc.recompute()
